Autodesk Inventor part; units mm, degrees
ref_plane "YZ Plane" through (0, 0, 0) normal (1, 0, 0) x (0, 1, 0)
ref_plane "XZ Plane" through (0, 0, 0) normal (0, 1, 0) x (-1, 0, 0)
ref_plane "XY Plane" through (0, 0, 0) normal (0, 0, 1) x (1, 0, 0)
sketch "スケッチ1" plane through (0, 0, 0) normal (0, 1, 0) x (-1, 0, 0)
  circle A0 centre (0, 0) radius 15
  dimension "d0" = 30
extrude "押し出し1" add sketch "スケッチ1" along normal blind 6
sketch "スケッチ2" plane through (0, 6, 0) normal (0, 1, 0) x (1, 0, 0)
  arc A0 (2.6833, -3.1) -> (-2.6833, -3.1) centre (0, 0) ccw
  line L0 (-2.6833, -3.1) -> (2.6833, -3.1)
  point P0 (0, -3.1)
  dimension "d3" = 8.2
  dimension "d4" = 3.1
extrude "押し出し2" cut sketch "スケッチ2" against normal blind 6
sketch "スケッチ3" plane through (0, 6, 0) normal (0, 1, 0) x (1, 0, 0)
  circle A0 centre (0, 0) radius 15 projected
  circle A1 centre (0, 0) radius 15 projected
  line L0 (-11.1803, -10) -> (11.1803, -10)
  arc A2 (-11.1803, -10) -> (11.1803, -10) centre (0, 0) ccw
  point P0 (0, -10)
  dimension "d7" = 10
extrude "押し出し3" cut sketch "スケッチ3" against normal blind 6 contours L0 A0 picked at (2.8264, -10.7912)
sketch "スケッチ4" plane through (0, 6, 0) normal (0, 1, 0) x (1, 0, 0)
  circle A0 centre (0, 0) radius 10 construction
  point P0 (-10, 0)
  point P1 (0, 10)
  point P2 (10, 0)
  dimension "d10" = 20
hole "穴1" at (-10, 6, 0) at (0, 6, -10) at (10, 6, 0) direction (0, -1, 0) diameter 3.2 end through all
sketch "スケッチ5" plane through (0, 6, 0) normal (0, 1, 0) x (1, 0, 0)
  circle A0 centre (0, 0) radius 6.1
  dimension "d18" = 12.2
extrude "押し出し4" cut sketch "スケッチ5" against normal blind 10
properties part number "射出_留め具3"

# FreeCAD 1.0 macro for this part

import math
import FreeCAD as App
import Part
import Sketcher
Q = App.Units.Quantity

doc = App.newDocument("Part")
body = doc.addObject("PartDesign::Body", "Body")

# Sketch on XZ plane
sketch1 = doc.addObject("Sketcher::SketchObject", "Sketch")
body.addObject(sketch1)
sketch1.AttachmentSupport = (doc.XZ_Plane, [""])
sketch1.MapMode = "FlatFace"
sketch1.addGeometry(Part.Circle(App.Vector(0, 0, 0), App.Vector(0, 0, 1), 15), False)
sketch1.addConstraint([
    Sketcher.Constraint("Coincident", 0, 3, -1, 1),
    Sketcher.Constraint("Diameter", 0, Q("30 mm")),
])
pad1 = doc.addObject("PartDesign::Pad", "Pad")
body.addObject(pad1)
pad1.Profile = sketch1
pad1.Length = 6
pad1.Reversed = True

# Sketch on XZ plane
sketch2 = doc.addObject("Sketcher::SketchObject", "Sketch001")
body.addObject(sketch2)
sketch2.AttachmentSupport = (doc.XZ_Plane, [""])
sketch2.MapMode = "FlatFace"
sketch2.AttachmentOffset = App.Placement(App.Vector(0, 0, -6), App.Rotation())
sketch2.addGeometry([
    Part.LineSegment(App.Vector(-2.7, 3.1, 0), App.Vector(2.7, 3.1, 0)),
    Part.ArcOfCircle(Part.Circle(App.Vector(0, 0, 0), App.Vector(0, 0, 1), 4.1), math.radians(131), math.radians(409)),
], False)
sketch2.addConstraint([
    Sketcher.Constraint("Coincident", 0, 1, 1, 1),
    Sketcher.Constraint("Coincident", 1, 2, 0, 2),
    Sketcher.Constraint("Horizontal", 0),
    Sketcher.Constraint("Coincident", 1, 3, -1, 1),
    Sketcher.Constraint("Radius", 1, Q("4.1 mm")),
    Sketcher.Constraint("DistanceY", -1, 1, 0, 1, Q("3.1 mm")),
])
pocket1 = doc.addObject("PartDesign::Pocket", "Pocket")
body.addObject(pocket1)
pocket1.Profile = sketch2
pocket1.Length = 6
pocket1.Reversed = True

# Sketch on XZ plane
sketch3 = doc.addObject("Sketcher::SketchObject", "Sketch002")
body.addObject(sketch3)
sketch3.AttachmentSupport = (doc.XZ_Plane, [""])
sketch3.MapMode = "FlatFace"
sketch3.AttachmentOffset = App.Placement(App.Vector(0, 0, -6), App.Rotation())
sketch3.addGeometry([
    Part.LineSegment(App.Vector(11, 10, 0), App.Vector(-11, 10, 0)),
    Part.ArcOfCircle(Part.Circle(App.Vector(0, 0, 0), App.Vector(0, 0, 1), 15), math.radians(42), math.radians(138)),
], False)
sketch3.addConstraint([
    Sketcher.Constraint("Coincident", 0, 1, 1, 1),
    Sketcher.Constraint("Coincident", 1, 2, 0, 2),
    Sketcher.Constraint("Horizontal", 0),
    Sketcher.Constraint("Coincident", 1, 3, -1, 1),
    Sketcher.Constraint("DistanceY", -1, 1, 0, 1, Q("10 mm")),
    Sketcher.Constraint("Radius", 1, Q("15 mm")),
])
pocket2 = doc.addObject("PartDesign::Pocket", "Pocket001")
body.addObject(pocket2)
pocket2.Profile = sketch3
pocket2.Length = 6
pocket2.Reversed = True

# Sketch on XZ plane
sketch4 = doc.addObject("Sketcher::SketchObject", "Sketch003")
body.addObject(sketch4)
sketch4.AttachmentSupport = (doc.XZ_Plane, [""])
sketch4.MapMode = "FlatFace"
sketch4.AttachmentOffset = App.Placement(App.Vector(0, 0, -6), App.Rotation())
sketch4.addGeometry([
    Part.Circle(App.Vector(-10, 0, 0), App.Vector(0, 0, 1), 1.6),
    Part.Circle(App.Vector(0, -10, 0), App.Vector(0, 0, 1), 1.6),
    Part.Circle(App.Vector(10, 0, 0), App.Vector(0, 0, 1), 1.6),
], False)
sketch4.addConstraint([
    Sketcher.Constraint("Equal", 0, 1),
    Sketcher.Constraint("Equal", 1, 2),
    Sketcher.Constraint("Symmetric", 0, 3, 2, 3, -1, 1),
    Sketcher.Constraint("PointOnObject", 0, 3, -1),
    Sketcher.Constraint("PointOnObject", 1, 3, -2),
    Sketcher.Constraint("Diameter", 0, Q("3.2 mm")),
    Sketcher.Constraint("DistanceX", 0, 3, -1, 1, Q("10 mm")),
    Sketcher.Constraint("DistanceY", 1, 3, -1, 1, Q("10 mm")),
])
doc.recompute()
hole = doc.addObject("PartDesign::Hole", "Hole")
body.addObject(hole)
hole.Profile = sketch4
hole.ThreadType = "None"
hole.Diameter = 3.2
hole.DepthType = "ThroughAll"
hole.Reversed = True

# Sketch on XZ plane
sketch5 = doc.addObject("Sketcher::SketchObject", "Sketch004")
body.addObject(sketch5)
sketch5.AttachmentSupport = (doc.XZ_Plane, [""])
sketch5.MapMode = "FlatFace"
sketch5.AttachmentOffset = App.Placement(App.Vector(0, 0, -6), App.Rotation())
sketch5.addGeometry(Part.Circle(App.Vector(0, 0, 0), App.Vector(0, 0, 1), 6), False)
sketch5.addConstraint([
    Sketcher.Constraint("Coincident", 0, 3, -1, 1),
    Sketcher.Constraint("Diameter", 0, Q("12.2 mm")),
])
pocket3 = doc.addObject("PartDesign::Pocket", "Pocket002")
body.addObject(pocket3)
pocket3.Profile = sketch5
pocket3.Length = 10
pocket3.Reversed = True

doc.recompute()
